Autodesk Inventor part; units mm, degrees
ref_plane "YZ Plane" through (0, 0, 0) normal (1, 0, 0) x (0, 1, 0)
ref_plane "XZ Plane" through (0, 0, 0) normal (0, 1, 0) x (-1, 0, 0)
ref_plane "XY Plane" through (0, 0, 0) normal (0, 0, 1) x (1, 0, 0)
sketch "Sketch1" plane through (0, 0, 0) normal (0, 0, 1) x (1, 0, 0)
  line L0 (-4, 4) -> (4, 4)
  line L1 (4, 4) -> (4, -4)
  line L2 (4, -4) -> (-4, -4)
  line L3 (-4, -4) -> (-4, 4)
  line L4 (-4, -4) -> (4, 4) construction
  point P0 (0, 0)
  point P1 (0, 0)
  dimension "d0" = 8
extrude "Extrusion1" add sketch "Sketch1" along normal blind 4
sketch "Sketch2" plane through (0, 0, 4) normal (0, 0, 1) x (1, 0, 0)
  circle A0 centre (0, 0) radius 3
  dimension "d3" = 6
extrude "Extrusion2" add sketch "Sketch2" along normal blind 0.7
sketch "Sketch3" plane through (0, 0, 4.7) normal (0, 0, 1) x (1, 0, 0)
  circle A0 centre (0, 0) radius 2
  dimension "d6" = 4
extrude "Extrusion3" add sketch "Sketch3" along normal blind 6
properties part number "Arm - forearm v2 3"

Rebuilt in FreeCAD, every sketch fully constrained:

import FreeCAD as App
import Part
import Sketcher

V = App.Vector
Q = App.Units.Quantity

doc = App.newDocument("Part")
params = doc.addObject("Spreadsheet::Sheet", "Params")
for row, (alias, value) in enumerate([
    ("sketch1_width", "8 mm"),
    ("pad1_length", "4 mm"),
    ("sketch2_diameter", "6 mm"),
    ("pad2_length", "0.7 mm"),
    ("sketch3_diameter", "4 mm"),
    ("pad3_length", "6 mm"),
], start=1):
    params.set(f"A{row}", alias)
    params.set(f"B{row}", "=" + value)
    params.setAlias(f"B{row}", alias)

body = doc.addObject("PartDesign::Body", "Body")

sketch1 = body.newObject("Sketcher::SketchObject", "Sketch")
sketch1.AttachmentSupport = (doc.getObject("XY_Plane"), [""])
sketch1.MapMode = "FlatFace"
sketch1.addGeometry([
    Part.LineSegment(V(4, 4, 0), V(-4, 4, 0)),
    Part.LineSegment(V(-4, 4, 0), V(-4, -4, 0)),
    Part.LineSegment(V(-4, -4, 0), V(4, -4, 0)),
    Part.LineSegment(V(4, -4, 0), V(4, 4, 0)),
], False)
sketch1.addConstraint([
    Sketcher.Constraint("Coincident", 0, 2, 1, 1),
    Sketcher.Constraint("Coincident", 1, 2, 2, 1),
    Sketcher.Constraint("Coincident", 2, 2, 3, 1),
    Sketcher.Constraint("Coincident", 3, 2, 0, 1),
    Sketcher.Constraint("Horizontal", 0),
    Sketcher.Constraint("Vertical", 1),
    Sketcher.Constraint("Horizontal", 2),
    Sketcher.Constraint("Vertical", 3),
    Sketcher.Constraint("Symmetric", 0, 2, 2, 2, -1, 1),
    Sketcher.Constraint("Equal", 2, 1),
    Sketcher.Constraint("DistanceX", 0, 2, 0, 1, Q("8 mm")),
])
sketch1.setExpression("Constraints[10]", "Params.sketch1_width")
pad1 = body.newObject("PartDesign::Pad", "Pad")
pad1.Profile = sketch1
pad1.setExpression("Length", "Params.pad1_length")

sketch2 = body.newObject("Sketcher::SketchObject", "Sketch001")
sketch2.AttachmentSupport = (doc.getObject("XY_Plane"), [""])
sketch2.MapMode = "FlatFace"
sketch2.AttachmentOffset = App.Placement(V(0, 0, 4), App.Rotation())
sketch2.addGeometry(Part.Circle(V(0, 0, 0), V(0, 0, 1), 3), False)
sketch2.addConstraint([
    Sketcher.Constraint("Coincident", 0, 3, -1, 1),
    Sketcher.Constraint("Diameter", 0, Q("6 mm")),
])
sketch2.setExpression("Constraints[1]", "Params.sketch2_diameter")
pad2 = body.newObject("PartDesign::Pad", "Pad001")
pad2.Profile = sketch2
pad2.setExpression("Length", "Params.pad2_length")

sketch3 = body.newObject("Sketcher::SketchObject", "Sketch002")
sketch3.AttachmentSupport = (doc.getObject("XY_Plane"), [""])
sketch3.MapMode = "FlatFace"
sketch3.AttachmentOffset = App.Placement(V(0, 0, 4.7), App.Rotation())
sketch3.addGeometry(Part.Circle(V(0, 0, 0), V(0, 0, 1), 2), False)
sketch3.addConstraint([
    Sketcher.Constraint("Coincident", 0, 3, -1, 1),
    Sketcher.Constraint("Diameter", 0, Q("4 mm")),
])
sketch3.setExpression("Constraints[1]", "Params.sketch3_diameter")
pad3 = body.newObject("PartDesign::Pad", "Pad002")
pad3.Profile = sketch3
pad3.setExpression("Length", "Params.pad3_length")

doc.recompute()
